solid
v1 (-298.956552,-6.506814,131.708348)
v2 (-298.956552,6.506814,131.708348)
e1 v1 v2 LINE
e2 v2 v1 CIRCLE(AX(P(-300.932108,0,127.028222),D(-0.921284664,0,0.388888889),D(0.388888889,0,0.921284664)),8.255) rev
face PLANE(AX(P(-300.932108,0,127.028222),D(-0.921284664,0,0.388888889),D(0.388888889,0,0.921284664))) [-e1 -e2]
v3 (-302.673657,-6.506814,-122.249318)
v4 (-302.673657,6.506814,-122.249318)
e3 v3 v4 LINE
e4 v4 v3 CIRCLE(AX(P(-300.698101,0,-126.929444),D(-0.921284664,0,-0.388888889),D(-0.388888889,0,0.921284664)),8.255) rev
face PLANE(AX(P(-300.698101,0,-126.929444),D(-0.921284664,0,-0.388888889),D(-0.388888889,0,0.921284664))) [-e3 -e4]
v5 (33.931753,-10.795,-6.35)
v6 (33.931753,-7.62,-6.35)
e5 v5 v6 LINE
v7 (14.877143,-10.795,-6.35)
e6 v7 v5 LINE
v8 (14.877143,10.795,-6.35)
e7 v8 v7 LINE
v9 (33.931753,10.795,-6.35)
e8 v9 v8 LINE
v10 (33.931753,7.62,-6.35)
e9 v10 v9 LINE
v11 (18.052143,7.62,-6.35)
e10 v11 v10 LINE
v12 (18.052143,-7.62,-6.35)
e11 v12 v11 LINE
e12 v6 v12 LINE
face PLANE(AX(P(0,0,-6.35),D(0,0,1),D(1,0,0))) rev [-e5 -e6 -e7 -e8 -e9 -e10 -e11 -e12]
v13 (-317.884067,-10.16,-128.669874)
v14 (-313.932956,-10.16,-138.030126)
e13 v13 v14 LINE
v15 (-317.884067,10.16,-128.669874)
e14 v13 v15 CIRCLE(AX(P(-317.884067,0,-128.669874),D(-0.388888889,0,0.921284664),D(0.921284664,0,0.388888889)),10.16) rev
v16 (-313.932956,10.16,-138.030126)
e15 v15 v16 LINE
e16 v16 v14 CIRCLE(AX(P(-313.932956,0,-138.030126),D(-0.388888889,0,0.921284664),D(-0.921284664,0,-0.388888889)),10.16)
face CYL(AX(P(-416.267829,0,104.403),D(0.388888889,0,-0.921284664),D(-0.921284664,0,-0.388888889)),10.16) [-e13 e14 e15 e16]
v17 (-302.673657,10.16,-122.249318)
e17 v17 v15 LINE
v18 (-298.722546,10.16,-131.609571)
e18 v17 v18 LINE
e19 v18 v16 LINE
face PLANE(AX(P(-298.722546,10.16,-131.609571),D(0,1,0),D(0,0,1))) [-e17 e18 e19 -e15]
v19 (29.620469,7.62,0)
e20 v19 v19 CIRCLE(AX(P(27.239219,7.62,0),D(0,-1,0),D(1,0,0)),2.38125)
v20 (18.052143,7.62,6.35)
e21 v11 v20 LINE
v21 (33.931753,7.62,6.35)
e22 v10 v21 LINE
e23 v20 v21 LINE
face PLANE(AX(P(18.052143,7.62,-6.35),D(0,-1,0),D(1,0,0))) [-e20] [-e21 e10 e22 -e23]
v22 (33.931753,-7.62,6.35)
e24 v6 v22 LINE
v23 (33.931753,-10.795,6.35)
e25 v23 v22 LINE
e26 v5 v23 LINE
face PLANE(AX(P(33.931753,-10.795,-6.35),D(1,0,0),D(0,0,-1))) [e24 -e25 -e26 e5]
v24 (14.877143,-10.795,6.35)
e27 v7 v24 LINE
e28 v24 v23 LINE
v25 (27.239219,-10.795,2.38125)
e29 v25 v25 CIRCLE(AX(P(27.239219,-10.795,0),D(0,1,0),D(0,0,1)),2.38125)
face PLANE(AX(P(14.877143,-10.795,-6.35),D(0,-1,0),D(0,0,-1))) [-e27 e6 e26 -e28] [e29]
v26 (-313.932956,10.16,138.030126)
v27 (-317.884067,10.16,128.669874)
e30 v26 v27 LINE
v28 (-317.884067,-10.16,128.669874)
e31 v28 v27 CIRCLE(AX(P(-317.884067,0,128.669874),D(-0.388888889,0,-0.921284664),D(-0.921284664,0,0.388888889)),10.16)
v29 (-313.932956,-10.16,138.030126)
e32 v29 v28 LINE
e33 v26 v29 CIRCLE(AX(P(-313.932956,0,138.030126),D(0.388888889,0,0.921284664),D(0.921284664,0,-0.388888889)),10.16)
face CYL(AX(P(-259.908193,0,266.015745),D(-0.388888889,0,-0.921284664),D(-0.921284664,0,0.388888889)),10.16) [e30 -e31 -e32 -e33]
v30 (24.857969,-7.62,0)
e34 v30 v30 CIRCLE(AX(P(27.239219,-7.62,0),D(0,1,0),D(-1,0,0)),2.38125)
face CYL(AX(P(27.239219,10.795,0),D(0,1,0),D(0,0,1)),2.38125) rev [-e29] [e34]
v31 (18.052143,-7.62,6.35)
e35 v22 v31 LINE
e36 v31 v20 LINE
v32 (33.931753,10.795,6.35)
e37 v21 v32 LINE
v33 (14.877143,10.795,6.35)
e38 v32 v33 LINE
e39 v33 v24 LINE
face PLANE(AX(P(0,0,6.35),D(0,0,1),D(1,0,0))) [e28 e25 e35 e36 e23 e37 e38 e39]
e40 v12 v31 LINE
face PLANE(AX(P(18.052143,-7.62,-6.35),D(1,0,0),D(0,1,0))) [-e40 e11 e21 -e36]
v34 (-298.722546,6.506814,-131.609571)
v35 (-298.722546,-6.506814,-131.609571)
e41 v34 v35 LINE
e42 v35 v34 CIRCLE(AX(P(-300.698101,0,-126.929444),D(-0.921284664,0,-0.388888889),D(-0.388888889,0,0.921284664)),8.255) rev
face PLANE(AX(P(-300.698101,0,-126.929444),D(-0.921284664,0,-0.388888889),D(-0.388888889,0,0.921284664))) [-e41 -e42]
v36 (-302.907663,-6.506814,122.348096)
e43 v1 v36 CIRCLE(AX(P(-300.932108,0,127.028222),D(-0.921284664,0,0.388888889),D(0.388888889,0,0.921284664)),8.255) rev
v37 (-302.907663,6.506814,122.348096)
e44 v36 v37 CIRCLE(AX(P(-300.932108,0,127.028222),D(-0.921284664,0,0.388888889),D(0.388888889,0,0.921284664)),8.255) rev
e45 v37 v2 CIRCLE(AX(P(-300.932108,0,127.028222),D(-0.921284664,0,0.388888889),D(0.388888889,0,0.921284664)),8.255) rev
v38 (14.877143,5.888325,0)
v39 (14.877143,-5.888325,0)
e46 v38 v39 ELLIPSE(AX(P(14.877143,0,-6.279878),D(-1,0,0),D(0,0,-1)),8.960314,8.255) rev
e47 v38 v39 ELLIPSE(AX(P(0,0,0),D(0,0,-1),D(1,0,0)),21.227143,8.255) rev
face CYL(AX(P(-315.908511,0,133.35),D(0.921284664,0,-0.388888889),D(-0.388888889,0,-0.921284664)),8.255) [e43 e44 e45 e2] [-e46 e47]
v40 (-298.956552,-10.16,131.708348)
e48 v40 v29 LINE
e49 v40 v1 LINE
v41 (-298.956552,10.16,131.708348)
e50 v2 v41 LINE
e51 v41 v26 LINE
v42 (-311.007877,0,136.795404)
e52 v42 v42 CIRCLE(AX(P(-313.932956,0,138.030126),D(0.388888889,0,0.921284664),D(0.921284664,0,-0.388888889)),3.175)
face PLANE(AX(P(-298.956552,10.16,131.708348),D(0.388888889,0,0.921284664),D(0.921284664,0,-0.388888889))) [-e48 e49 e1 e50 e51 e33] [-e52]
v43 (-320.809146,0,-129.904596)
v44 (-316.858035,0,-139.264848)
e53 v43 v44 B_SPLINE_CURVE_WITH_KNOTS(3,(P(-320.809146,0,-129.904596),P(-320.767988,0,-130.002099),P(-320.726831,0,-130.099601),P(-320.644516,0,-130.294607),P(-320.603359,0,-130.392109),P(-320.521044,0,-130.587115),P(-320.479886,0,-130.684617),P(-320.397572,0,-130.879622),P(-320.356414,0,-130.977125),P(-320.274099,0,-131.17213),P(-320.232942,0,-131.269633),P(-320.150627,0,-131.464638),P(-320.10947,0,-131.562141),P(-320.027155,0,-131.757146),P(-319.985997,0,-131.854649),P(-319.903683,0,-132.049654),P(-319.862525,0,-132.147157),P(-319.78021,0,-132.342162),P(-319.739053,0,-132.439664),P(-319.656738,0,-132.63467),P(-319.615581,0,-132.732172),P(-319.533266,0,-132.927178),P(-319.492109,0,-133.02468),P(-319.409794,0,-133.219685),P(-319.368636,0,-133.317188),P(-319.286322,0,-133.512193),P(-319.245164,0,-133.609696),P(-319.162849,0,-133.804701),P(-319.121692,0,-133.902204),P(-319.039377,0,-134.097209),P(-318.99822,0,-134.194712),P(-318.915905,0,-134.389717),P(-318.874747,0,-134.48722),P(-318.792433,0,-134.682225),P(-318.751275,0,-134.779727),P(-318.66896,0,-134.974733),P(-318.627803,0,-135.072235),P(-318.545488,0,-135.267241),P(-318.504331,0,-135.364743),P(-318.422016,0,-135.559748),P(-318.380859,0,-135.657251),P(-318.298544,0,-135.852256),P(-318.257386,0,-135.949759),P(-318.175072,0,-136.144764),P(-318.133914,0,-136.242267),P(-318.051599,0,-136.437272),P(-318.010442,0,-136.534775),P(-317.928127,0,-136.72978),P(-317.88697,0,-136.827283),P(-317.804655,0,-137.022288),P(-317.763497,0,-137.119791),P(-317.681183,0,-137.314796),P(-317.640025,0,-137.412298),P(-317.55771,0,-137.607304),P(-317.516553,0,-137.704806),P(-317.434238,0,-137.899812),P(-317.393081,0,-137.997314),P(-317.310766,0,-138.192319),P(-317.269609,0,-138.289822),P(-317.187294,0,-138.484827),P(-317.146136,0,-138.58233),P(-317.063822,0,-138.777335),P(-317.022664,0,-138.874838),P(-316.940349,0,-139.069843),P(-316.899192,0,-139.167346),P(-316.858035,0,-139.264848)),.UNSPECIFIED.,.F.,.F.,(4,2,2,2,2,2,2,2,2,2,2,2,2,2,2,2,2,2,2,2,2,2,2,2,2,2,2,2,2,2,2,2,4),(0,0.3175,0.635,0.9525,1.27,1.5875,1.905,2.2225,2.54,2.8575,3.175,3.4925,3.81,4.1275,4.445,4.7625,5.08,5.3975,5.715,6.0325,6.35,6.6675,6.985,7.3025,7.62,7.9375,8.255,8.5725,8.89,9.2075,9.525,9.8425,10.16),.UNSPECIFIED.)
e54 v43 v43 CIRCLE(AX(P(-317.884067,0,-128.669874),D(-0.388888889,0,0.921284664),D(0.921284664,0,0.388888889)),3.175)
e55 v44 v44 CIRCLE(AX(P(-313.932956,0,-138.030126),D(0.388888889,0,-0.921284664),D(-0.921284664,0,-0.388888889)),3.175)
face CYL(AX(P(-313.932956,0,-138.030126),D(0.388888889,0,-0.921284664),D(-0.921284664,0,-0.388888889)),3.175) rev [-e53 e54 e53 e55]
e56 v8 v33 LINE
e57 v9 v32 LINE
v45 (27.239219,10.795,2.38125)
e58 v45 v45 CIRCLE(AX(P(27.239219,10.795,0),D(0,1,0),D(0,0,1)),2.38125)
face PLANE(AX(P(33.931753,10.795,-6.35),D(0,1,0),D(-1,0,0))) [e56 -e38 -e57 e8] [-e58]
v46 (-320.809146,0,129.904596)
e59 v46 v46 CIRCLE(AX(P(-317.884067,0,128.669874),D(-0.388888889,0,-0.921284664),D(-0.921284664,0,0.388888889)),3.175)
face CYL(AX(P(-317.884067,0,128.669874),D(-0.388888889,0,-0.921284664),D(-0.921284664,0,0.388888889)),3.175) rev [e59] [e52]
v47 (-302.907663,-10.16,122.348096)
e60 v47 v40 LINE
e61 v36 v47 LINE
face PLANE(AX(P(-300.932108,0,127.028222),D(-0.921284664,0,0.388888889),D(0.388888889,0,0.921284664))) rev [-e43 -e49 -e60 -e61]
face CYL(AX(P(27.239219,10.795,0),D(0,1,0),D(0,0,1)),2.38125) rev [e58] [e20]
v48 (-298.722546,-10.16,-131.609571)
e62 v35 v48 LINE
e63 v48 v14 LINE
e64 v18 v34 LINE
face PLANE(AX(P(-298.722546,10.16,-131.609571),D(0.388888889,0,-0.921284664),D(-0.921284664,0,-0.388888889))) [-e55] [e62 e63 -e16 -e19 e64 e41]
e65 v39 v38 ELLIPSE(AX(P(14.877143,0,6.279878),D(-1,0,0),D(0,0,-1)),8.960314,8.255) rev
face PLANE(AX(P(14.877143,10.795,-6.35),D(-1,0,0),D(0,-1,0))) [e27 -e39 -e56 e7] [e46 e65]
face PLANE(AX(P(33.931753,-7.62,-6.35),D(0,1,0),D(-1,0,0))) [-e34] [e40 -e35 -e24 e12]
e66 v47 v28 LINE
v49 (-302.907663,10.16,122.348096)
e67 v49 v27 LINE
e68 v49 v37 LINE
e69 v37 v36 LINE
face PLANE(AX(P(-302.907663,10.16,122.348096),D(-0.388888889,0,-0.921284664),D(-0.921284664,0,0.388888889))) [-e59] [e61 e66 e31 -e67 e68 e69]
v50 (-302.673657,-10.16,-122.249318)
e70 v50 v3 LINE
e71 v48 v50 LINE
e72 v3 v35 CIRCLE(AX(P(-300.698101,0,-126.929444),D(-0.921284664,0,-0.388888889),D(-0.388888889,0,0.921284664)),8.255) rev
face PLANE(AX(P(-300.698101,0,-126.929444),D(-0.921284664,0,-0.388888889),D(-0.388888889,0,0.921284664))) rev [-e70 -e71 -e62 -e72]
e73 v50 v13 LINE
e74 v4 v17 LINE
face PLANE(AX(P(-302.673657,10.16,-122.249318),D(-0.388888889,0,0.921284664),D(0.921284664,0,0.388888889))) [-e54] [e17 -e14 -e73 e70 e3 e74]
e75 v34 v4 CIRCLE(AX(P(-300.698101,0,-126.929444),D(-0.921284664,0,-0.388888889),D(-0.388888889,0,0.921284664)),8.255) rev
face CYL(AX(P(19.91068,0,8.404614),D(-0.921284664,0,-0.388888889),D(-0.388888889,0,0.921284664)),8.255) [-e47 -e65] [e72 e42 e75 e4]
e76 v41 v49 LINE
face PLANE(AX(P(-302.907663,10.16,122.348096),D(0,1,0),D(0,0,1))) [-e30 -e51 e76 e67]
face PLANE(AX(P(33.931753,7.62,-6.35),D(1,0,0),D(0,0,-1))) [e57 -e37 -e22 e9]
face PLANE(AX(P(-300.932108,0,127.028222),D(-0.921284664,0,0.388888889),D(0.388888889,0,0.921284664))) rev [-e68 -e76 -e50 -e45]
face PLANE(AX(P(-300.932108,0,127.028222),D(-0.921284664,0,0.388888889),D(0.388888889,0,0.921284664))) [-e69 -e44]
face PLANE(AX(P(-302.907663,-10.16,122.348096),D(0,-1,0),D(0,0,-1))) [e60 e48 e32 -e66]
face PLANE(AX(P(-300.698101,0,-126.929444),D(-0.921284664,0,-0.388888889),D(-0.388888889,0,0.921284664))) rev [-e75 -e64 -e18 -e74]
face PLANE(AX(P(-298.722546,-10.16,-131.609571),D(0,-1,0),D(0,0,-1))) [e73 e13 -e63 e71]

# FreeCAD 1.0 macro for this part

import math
import FreeCAD as App
import Part
import Sketcher
Q = App.Units.Quantity


def add_polygon(sketch, points):
    """Adds a closed chain of lines whose ends are joined by coincident constraints."""
    first, n = sketch.GeometryCount, len(points)
    for a, b in zip(points, points[1:] + points[:1]):
        sketch.addGeometry(Part.LineSegment(App.Vector(*a, 0), App.Vector(*b, 0)), False)
    for i in range(n):
        sketch.addConstraint(Sketcher.Constraint("Coincident", first + i, 2, first + (i + 1) % n, 1))

doc = App.newDocument("Part")
body = doc.addObject("PartDesign::Body", "Body")

sketch1 = body.newObject("Sketcher::SketchObject", "Sketch")
sketch1.Placement = App.Placement(App.Vector(-315.908511, 0, 133.35), App.Rotation(App.Vector(-0.388888889, 0, -0.921284664), App.Vector(0, 1, 0), App.Vector(0.921284664, 0, -0.388888889), "ZXY"))
sketch1.addGeometry(Part.Circle(App.Vector(0, 0, 0), App.Vector(0, 0, 1), 8), False)
sketch1.addConstraint([
    Sketcher.Constraint("Coincident", 0, 3, -1, 1),
    Sketcher.Constraint("Diameter", 0, Q("0.65 in")),
])

sketch2 = body.newObject("Sketcher::SketchObject", "Sketch001")
sketch2.AttachmentSupport = (doc.getObject("XZ_Plane"), [""])
sketch2.MapMode = "FlatFace"
sketch2.addGeometry([
    Part.LineSegment(App.Vector(-316, 133, 0), App.Vector(0, 0, 0)),
    Part.LineSegment(App.Vector(0, 0, 0), App.Vector(-316, -133, 0)),
], False)
sketch2.addConstraint([
    Sketcher.Constraint("Coincident", 0, 2, 1, 1),
    Sketcher.Constraint("Coincident", 0, 2, -1, 1),
    Sketcher.Constraint("Symmetric", 0, 1, 1, 2, -1),
    Sketcher.Constraint("Distance", 0, Q("13.5 in")),
    Sketcher.Constraint("DistanceY", 1, 2, 0, 1, Q("10.5 in")),
])
doc.recompute()

additivepipe = body.newObject("PartDesign::AdditivePipe", "AdditivePipe")
additivepipe.Profile = sketch1
additivepipe.Spine = (sketch2, ["Edge1", "Edge2"])
additivepipe.Transition = "Right corner"

sketch3 = body.newObject("Sketcher::SketchObject", "Sketch002")
sketch3.AttachmentSupport = (doc.getObject("XY_Plane"), [""])
sketch3.MapMode = "FlatFace"
add_polygon(sketch3, [(33.9, 10.8), (14.9, 10.8), (14.9, -10.8), (33.9, -10.8), (33.9, -7.6), (18.1, -7.6), (18.1, 7.6), (33.9, 7.6)])
sketch3.addConstraint([
    Sketcher.Constraint("Horizontal", 0),
    Sketcher.Constraint("Vertical", 1),
    Sketcher.Constraint("Horizontal", 2),
    Sketcher.Constraint("Vertical", 3),
    Sketcher.Constraint("Horizontal", 4),
    Sketcher.Constraint("Vertical", 5),
    Sketcher.Constraint("Horizontal", 6),
    Sketcher.Constraint("Vertical", 7),
    Sketcher.Constraint("Symmetric", 3, 2, 6, 2, -1),
    Sketcher.Constraint("Equal", 3, 7),
    Sketcher.Constraint("DistanceY", 5, 1, 5, 2, Q("0.6 in")),
    Sketcher.Constraint("DistanceY", 1, 2, 1, 1, Q("0.85 in")),
    Sketcher.Constraint("DistanceX", 1, 2, 4, 2, Q("0.125 in")),
    Sketcher.Constraint("DistanceX", 0, 2, 0, 1, 19.054611),
    Sketcher.Constraint("DistanceX", -1, 1, 0, 2, 14.877143),
])
pad1 = body.newObject("PartDesign::Pad", "Pad")
pad1.Profile = sketch3
pad1.Type = "TwoLengths"
pad1.Length = Q("0.25 in")
pad1.Length2 = Q("0.25 in")

sketch4 = body.newObject("Sketcher::SketchObject", "Sketch003")
sketch4.Placement = App.Placement(App.Vector(-315.908511, 0, 133.35), App.Rotation(App.Vector(0.388888889, 0, 0.921284664), App.Vector(0, 1, 0), App.Vector(-0.921284664, 0, 0.388888889), "ZXY"))
add_polygon(sketch4, [(-5, 10), (-5, -10), (5, -10), (5, 10)])
sketch4.addConstraint([
    Sketcher.Constraint("Vertical", 0),
    Sketcher.Constraint("Horizontal", 1),
    Sketcher.Constraint("Vertical", 2),
    Sketcher.Constraint("Horizontal", 3),
    Sketcher.Constraint("Symmetric", 0, 2, 2, 2, -1, 1),
    Sketcher.Constraint("DistanceX", 1, 1, 1, 2, Q("0.4 in")),
    Sketcher.Constraint("DistanceY", 0, 2, 0, 1, Q("0.8 in")),
])
pad2 = body.newObject("PartDesign::Pad", "Pad001")
pad2.Profile = sketch4
pad2.Type = "TwoLengths"
pad2.Length = Q("0.4 in")
pad2.Length2 = Q("0.64 in")

sketch5 = body.newObject("Sketcher::SketchObject", "Sketch004")
sketch5.Placement = App.Placement(App.Vector(-315.908511, 0, -133.35), App.Rotation(App.Vector(-0.388888889, 0, 0.921284664), App.Vector(0, 1, 0), App.Vector(-0.921284664, 0, -0.388888889), "ZXY"))
add_polygon(sketch5, [(-5, 10), (-5, -10), (5, -10), (5, 10)])
sketch5.addConstraint([
    Sketcher.Constraint("Vertical", 0),
    Sketcher.Constraint("Horizontal", 1),
    Sketcher.Constraint("Vertical", 2),
    Sketcher.Constraint("Horizontal", 3),
    Sketcher.Constraint("Symmetric", 0, 2, 2, 2, -1, 1),
    Sketcher.Constraint("DistanceX", 1, 1, 1, 2, Q("0.4 in")),
    Sketcher.Constraint("DistanceY", 0, 2, 0, 1, Q("0.8 in")),
])
pad3 = body.newObject("PartDesign::Pad", "Pad002")
pad3.Profile = sketch5
pad3.Type = "TwoLengths"
pad3.Length = Q("0.4 in")
pad3.Length2 = Q("0.65 in")

sketch6 = body.newObject("Sketcher::SketchObject", "Sketch005")
sketch6.Placement = App.Placement(App.Vector(1.975556, 0, -4.680126), App.Rotation(App.Vector(-0.921284664, 0, -0.388888889), App.Vector(0, 1, 0), App.Vector(0.388888889, 0, -0.921284664), "ZXY"))
sketch6.addGeometry([
    Part.LineSegment(App.Vector(353, 0, 0), App.Vector(353, 10, 0)),
    Part.LineSegment(App.Vector(353, 10, 0), App.Vector(343, 10, 0)),
    Part.ArcOfCircle(Part.Circle(App.Vector(343, 0, 0), App.Vector(0, 0, 1), 10), math.radians(0), math.radians(90)),
], False)
sketch6.addConstraint([
    Sketcher.Constraint("Coincident", 0, 2, 1, 1),
    Sketcher.Constraint("Tangent", 1, 2, 2, 2),
    Sketcher.Constraint("Tangent", 2, 1, 0, 1),
    Sketcher.Constraint("Vertical", 0),
    Sketcher.Constraint("Horizontal", 1),
    Sketcher.Constraint("PointOnObject", 2, 3, -1),
    Sketcher.Constraint("Radius", 2, Q("0.4 in")),
    Sketcher.Constraint("DistanceX", -1, 1, 2, 3, Q("13.5 in")),
])
pocket1 = body.newObject("PartDesign::Pocket", "Pocket")
pocket1.Profile = sketch6
pocket1.Type = "ThroughAll"

sketch7 = body.newObject("Sketcher::SketchObject", "Sketch006")
sketch7.Placement = App.Placement(App.Vector(-1.975556, 0, -4.680126), App.Rotation(App.Vector(-0.921284664, 0, 0.388888889), App.Vector(0, 1, 0), App.Vector(-0.388888889, 0, -0.921284664), "ZXY"))
sketch7.addGeometry([
    Part.LineSegment(App.Vector(353, 10, 0), App.Vector(343, 10, 0)),
    Part.ArcOfCircle(Part.Circle(App.Vector(343, 0, 0), App.Vector(0, 0, 1), 10), math.radians(0), math.radians(90)),
    Part.LineSegment(App.Vector(353, 0, 0), App.Vector(353, 10, 0)),
    Part.LineSegment(App.Vector(353, -10, 0), App.Vector(353, 0, 0)),
    Part.ArcOfCircle(Part.Circle(App.Vector(343, 0, 0), App.Vector(0, 0, 1), 10), math.radians(-90), math.radians(0)),
    Part.LineSegment(App.Vector(343, -10, 0), App.Vector(353, -10, 0)),
], False)
sketch7.addConstraint([
    Sketcher.Constraint("Tangent", 0, 2, 1, 2),
    Sketcher.Constraint("Tangent", 1, 1, 2, 1),
    Sketcher.Constraint("Coincident", 2, 2, 0, 1),
    Sketcher.Constraint("Tangent", 3, 2, 4, 2),
    Sketcher.Constraint("Tangent", 4, 1, 5, 1),
    Sketcher.Constraint("Coincident", 5, 2, 3, 1),
    Sketcher.Constraint("Horizontal", 0),
    Sketcher.Constraint("Vertical", 2),
    Sketcher.Constraint("Vertical", 3),
    Sketcher.Constraint("Horizontal", 5),
    Sketcher.Constraint("Coincident", 4, 3, 1, 3),
    Sketcher.Constraint("Equal", 1, 4),
    Sketcher.Constraint("PointOnObject", 1, 3, -1),
    Sketcher.Constraint("Radius", 1, Q("0.4 in")),
    Sketcher.Constraint("DistanceX", -1, 1, 1, 3, Q("13.5 in")),
])
pocket2 = body.newObject("PartDesign::Pocket", "Pocket001")
pocket2.Profile = sketch7
pocket2.Type = "ThroughAll"
doc.recompute()

mirrored = body.newObject("PartDesign::Mirrored", "Mirrored")
mirrored.Originals = [pocket1]
mirrored.MirrorPlane = (doc.getObject("XZ_Plane"), [""])
body.Tip = mirrored

sketch8 = body.newObject("Sketcher::SketchObject", "Sketch007")
sketch8.Placement = App.Placement(App.Vector(-315.908511, 0, -133.35), App.Rotation(App.Vector(-0.388888889, 0, 0.921284664), App.Vector(0, 1, 0), App.Vector(-0.921284664, 0, -0.388888889), "ZXY"))
sketch8.addGeometry([
    Part.LineSegment(App.Vector(5, 7, 0), App.Vector(5, -7, 0)),
    Part.ArcOfCircle(Part.Circle(App.Vector(0, 0, 0), App.Vector(0, 0, 1), 8), math.radians(-52), math.radians(52)),
    Part.LineSegment(App.Vector(-5, -7, 0), App.Vector(-5, 7, 0)),
    Part.ArcOfCircle(Part.Circle(App.Vector(0, 0, 0), App.Vector(0, 0, 1), 8), math.radians(128), math.radians(232)),
], False)
sketch8.addConstraint([
    Sketcher.Constraint("Coincident", 0, 1, 1, 2),
    Sketcher.Constraint("Coincident", 1, 1, 0, 2),
    Sketcher.Constraint("Coincident", 2, 1, 3, 2),
    Sketcher.Constraint("Coincident", 3, 1, 2, 2),
    Sketcher.Constraint("Vertical", 0),
    Sketcher.Constraint("Vertical", 2),
    Sketcher.Constraint("Coincident", 1, 3, -1, 1),
    Sketcher.Constraint("Coincident", 3, 3, -1, 1),
    Sketcher.Constraint("Equal", 1, 3),
    Sketcher.Constraint("Horizontal", 1, 1, 2, 1),
    Sketcher.Constraint("Radius", 1, Q("0.325 in")),
    Sketcher.Constraint("DistanceX", -1, 1, 0, 1, Q("0.2 in")),
])
pocket3 = body.newObject("PartDesign::Pocket", "Pocket002")
pocket3.Profile = sketch8
pocket3.Length = Q("0.65 in")

sketch9 = body.newObject("Sketcher::SketchObject", "Sketch008")
sketch9.Placement = App.Placement(App.Vector(-300.932108, 0, 127.028222), App.Rotation(App.Vector(0.388888889, 0, 0.921284664), App.Vector(0, 1, 0), App.Vector(-0.921284664, 0, 0.388888889), "ZXY"))
sketch9.addGeometry([
    Part.LineSegment(App.Vector(5, 7, 0), App.Vector(5, -7, 0)),
    Part.ArcOfCircle(Part.Circle(App.Vector(0, 0, 0), App.Vector(0, 0, 1), 8), math.radians(-52), math.radians(52)),
    Part.LineSegment(App.Vector(-5, -7, 0), App.Vector(-5, 7, 0)),
    Part.ArcOfCircle(Part.Circle(App.Vector(0, 0, 0), App.Vector(0, 0, 1), 8), math.radians(128), math.radians(232)),
], False)
sketch9.addConstraint([
    Sketcher.Constraint("Coincident", 0, 1, 1, 2),
    Sketcher.Constraint("Coincident", 1, 1, 0, 2),
    Sketcher.Constraint("Coincident", 2, 1, 3, 2),
    Sketcher.Constraint("Coincident", 3, 1, 2, 2),
    Sketcher.Constraint("Vertical", 0),
    Sketcher.Constraint("Vertical", 2),
    Sketcher.Constraint("Coincident", 1, 3, -1, 1),
    Sketcher.Constraint("Coincident", 3, 3, -1, 1),
    Sketcher.Constraint("Equal", 1, 3),
    Sketcher.Constraint("Horizontal", 1, 1, 2, 1),
    Sketcher.Constraint("Radius", 1, Q("0.325 in")),
    Sketcher.Constraint("DistanceX", -1, 1, 0, 1, Q("0.2 in")),
])
pocket4 = body.newObject("PartDesign::Pocket", "Pocket003")
pocket4.Profile = sketch9
pocket4.Length = Q("0.64 in")
pocket4.Reversed = True

sketch10 = body.newObject("Sketcher::SketchObject", "Sketch009")
sketch10.Placement = App.Placement(App.Vector(1.975556, 0, -4.680126), App.Rotation(App.Vector(-0.921284664, 0, -0.388888889), App.Vector(0, 1, 0), App.Vector(0.388888889, 0, -0.921284664), "ZXY"))
sketch10.addGeometry(Part.Circle(App.Vector(342.9, 0, 0), App.Vector(0, 0, 1), 3.2), False)
sketch10.addConstraint([
    Sketcher.Constraint("PointOnObject", 0, 3, -1),
    Sketcher.Constraint("Diameter", 0, Q("0.25 in")),
    Sketcher.Constraint("DistanceX", -1, 1, 0, 3, Q("13.5 in")),
])
doc.recompute()
hole = body.newObject("PartDesign::Hole", "Hole")
hole.Profile = sketch10
hole.ThreadType = "None"
hole.Diameter = Q("0.25 in")
hole.DepthType = "Dimension"
hole.Depth = Q("0.75 in")
hole.DrillPoint = "Angled"
hole.DrillPointAngle = 118

sketch11 = body.newObject("Sketcher::SketchObject", "Sketch010")
sketch11.Placement = App.Placement(App.Vector(-1.975556, 0, -4.680126), App.Rotation(App.Vector(-0.921284664, 0, 0.388888889), App.Vector(0, 1, 0), App.Vector(-0.388888889, 0, -0.921284664), "ZXY"))
sketch11.addGeometry(Part.Circle(App.Vector(342.9, 0, 0), App.Vector(0, 0, 1), 3.2), False)
sketch11.addConstraint([
    Sketcher.Constraint("PointOnObject", 0, 3, -1),
    Sketcher.Constraint("Diameter", 0, Q("0.25 in")),
    Sketcher.Constraint("DistanceX", -1, 1, 0, 3, Q("13.5 in")),
])
doc.recompute()
hole2 = body.newObject("PartDesign::Hole", "Hole001")
hole2.Profile = sketch11
hole2.ThreadType = "None"
hole2.Diameter = Q("0.25 in")
hole2.DepthType = "Dimension"
hole2.Depth = Q("0.75 in")
hole2.DrillPoint = "Angled"
hole2.DrillPointAngle = 118

sketch12 = body.newObject("Sketcher::SketchObject", "Sketch011")
sketch12.AttachmentSupport = (doc.getObject("XY_Plane"), [""])
sketch12.MapMode = "FlatFace"
sketch12.AttachmentOffset = App.Placement(App.Vector(0, 0, 0.25 * 25.4), App.Rotation())
sketch12.addGeometry([
    Part.LineSegment(App.Vector(18.052143, 4.342894, 0), App.Vector(18.052143, -4.342894, 0)),
    Part.BSplineCurve([App.Vector(18.052143, -4.342894, 0), App.Vector(24.96056, 0, 0), App.Vector(18.052143, 4.342894, 0)], [3, 3], [5.729186052, 6.837184562], False, 2, [1, 0.85042735, 1], False),
], False)
sketch12.addConstraint([
    Sketcher.Constraint("Block", 1),
    Sketcher.Constraint("Coincident", 0, 1, 1, 2),
    Sketcher.Constraint("Coincident", 1, 1, 0, 2),
])
pocket5 = body.newObject("PartDesign::Pocket", "Pocket004")
pocket5.Profile = sketch12
pocket5.Type = "ThroughAll"

sketch13 = body.newObject("Sketcher::SketchObject", "Sketch012")
sketch13.AttachmentSupport = (doc.getObject("XZ_Plane"), [""])
sketch13.MapMode = "FlatFace"
sketch13.AttachmentOffset = App.Placement(App.Vector(0, 0, -0.425 * 25.4), App.Rotation())
sketch13.addGeometry(Part.Circle(App.Vector(27.2, 0, 0), App.Vector(0, 0, 1), 2.4), False)
sketch13.addConstraint([
    Sketcher.Constraint("PointOnObject", 0, 3, -1),
    Sketcher.Constraint("Diameter", 0, Q("0.1875 in")),
    Sketcher.Constraint("DistanceX", -1, 1, 0, 3, 27.239219),
])
doc.recompute()
hole3 = body.newObject("PartDesign::Hole", "Hole002")
hole3.Profile = sketch13
hole3.ThreadType = "None"
hole3.Diameter = Q("0.1875 in")
hole3.DepthType = "ThroughAll"
hole3.Reversed = True

doc.recompute()
